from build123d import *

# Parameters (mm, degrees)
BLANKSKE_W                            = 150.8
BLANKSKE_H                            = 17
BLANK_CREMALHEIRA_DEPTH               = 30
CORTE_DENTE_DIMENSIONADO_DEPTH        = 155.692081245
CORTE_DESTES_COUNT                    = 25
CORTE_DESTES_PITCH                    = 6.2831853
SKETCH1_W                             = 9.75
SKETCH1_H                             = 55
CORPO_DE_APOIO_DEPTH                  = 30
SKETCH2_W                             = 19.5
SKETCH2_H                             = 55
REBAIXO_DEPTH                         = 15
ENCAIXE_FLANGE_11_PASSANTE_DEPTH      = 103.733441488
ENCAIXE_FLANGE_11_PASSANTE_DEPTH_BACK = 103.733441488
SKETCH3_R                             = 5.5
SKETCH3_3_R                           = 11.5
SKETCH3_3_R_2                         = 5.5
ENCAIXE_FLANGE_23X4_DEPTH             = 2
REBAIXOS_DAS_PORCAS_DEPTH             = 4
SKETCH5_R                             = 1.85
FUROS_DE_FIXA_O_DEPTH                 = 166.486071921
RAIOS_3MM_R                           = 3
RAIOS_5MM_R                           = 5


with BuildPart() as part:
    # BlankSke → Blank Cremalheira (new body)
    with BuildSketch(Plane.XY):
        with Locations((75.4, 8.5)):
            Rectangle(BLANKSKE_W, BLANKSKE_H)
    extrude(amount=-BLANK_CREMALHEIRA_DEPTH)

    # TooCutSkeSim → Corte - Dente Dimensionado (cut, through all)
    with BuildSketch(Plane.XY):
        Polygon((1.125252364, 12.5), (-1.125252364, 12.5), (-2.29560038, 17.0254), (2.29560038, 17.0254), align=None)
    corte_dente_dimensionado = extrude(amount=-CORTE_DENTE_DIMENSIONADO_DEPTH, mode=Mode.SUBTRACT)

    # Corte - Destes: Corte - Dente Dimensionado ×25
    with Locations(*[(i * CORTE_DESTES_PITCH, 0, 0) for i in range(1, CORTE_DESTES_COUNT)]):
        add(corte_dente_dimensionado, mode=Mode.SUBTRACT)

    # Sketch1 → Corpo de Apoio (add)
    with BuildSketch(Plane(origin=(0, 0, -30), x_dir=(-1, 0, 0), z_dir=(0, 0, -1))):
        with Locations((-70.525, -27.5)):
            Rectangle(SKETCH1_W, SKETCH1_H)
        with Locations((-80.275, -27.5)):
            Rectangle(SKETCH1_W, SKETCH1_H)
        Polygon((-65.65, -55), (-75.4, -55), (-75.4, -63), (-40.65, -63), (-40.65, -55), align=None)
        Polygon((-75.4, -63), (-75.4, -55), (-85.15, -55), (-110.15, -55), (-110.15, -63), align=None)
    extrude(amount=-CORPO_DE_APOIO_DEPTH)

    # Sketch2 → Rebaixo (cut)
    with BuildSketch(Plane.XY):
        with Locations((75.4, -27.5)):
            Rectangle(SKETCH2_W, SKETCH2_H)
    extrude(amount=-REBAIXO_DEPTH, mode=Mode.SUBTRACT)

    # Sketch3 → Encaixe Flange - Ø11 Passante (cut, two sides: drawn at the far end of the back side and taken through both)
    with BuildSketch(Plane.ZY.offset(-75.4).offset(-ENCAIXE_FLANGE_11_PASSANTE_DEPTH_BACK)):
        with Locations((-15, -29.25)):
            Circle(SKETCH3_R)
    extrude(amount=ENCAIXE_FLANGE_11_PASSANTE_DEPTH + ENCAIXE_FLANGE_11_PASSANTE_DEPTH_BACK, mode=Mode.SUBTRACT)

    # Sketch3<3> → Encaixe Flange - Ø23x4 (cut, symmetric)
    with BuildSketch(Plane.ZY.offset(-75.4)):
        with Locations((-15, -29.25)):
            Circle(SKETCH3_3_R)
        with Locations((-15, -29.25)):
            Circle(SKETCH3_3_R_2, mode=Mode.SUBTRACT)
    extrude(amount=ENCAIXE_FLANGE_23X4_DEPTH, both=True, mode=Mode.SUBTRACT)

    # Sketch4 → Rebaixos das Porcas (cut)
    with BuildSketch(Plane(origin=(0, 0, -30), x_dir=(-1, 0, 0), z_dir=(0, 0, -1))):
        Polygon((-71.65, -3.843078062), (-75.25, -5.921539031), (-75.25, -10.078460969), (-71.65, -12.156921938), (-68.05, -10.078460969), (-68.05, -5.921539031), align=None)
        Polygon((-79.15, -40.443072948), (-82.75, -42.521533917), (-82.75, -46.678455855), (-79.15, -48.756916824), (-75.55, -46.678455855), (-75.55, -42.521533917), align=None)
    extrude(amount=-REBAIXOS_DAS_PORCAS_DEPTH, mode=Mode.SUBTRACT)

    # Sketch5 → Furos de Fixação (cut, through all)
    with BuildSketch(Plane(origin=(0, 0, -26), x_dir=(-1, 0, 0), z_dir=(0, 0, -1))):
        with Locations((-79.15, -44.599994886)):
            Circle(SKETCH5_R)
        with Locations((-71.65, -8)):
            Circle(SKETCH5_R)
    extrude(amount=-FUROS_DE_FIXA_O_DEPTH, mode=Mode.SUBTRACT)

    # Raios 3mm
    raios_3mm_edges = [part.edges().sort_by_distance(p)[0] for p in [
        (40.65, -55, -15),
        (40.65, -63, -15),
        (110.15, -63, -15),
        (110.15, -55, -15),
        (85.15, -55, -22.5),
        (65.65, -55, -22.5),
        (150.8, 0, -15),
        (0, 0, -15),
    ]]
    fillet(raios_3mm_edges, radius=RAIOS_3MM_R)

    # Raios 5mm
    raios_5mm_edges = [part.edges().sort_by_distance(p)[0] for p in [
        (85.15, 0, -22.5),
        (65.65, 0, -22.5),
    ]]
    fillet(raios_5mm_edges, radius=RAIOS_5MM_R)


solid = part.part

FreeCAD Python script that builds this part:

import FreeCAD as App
import Part
import Sketcher
Q = App.Units.Quantity


def edges_at(feature, points):
    """Names of the edges that pass closest to the given points."""
    edges = feature.Shape.Edges
    near = lambda p: min(range(len(edges)), key=lambda i: edges[i].distToShape(Part.Vertex(*p))[0])
    return sorted({f"Edge{near(p) + 1}" for p in points})


def add_polygon(sketch, points):
    """Adds a closed chain of lines whose ends are joined by coincident constraints."""
    first, n = sketch.GeometryCount, len(points)
    for a, b in zip(points, points[1:] + points[:1]):
        sketch.addGeometry(Part.LineSegment(App.Vector(*a, 0), App.Vector(*b, 0)), False)
    for i in range(n):
        sketch.addConstraint(Sketcher.Constraint("Coincident", first + i, 2, first + (i + 1) % n, 1))

doc = App.newDocument("Part")
params = doc.addObject("Spreadsheet::Sheet", "Params")
for row, (alias, value) in enumerate([
    ("sketch1_height", "17 mm"),
    ("sketch1_width", "150.8 mm"),
    ("pad1_length", "30 mm"),
    ("linearpattern_pitch", "6.283185 mm"),
    ("sketch3_width", "25 mm"),
    ("sketch3_height", "55 mm"),
    ("sketch3_height2", "8 mm"),
    ("sketch3_width2", "19.5 mm"),
    ("pad2_length", "30 mm"),
    ("sketch4_height", "55 mm"),
    ("sketch4_width", "19.5 mm"),
    ("pocket2_length", "15 mm"),
    ("sketch5_diameter", "11 mm"),
    ("sketch6_diameter", "23 mm"),
    ("sketch6_diameter2", "11 mm"),
    ("pocket4_length", "4 mm"),
    ("pocket5_length", "4 mm"),
    ("sketch8_diameter", "3.7 mm"),
    ("fillet_radius", "3 mm"),
    ("fillet2_radius", "5 mm"),
], start=1):
    params.set(f"A{row}", alias)
    params.set(f"B{row}", "=" + value)
    params.setAlias(f"B{row}", alias)

body = doc.addObject("PartDesign::Body", "Body")

sketch1 = body.newObject("Sketcher::SketchObject", "Sketch")
sketch1.AttachmentSupport = (doc.getObject("XY_Plane"), [""])
sketch1.MapMode = "FlatFace"
add_polygon(sketch1, [(0, 17), (0, 0), (151, 0), (151, 17)])
sketch1.addConstraint([
    Sketcher.Constraint("Vertical", 0),
    Sketcher.Constraint("Horizontal", 1),
    Sketcher.Constraint("Vertical", 2),
    Sketcher.Constraint("Horizontal", 3),
    Sketcher.Constraint("Coincident", 0, 2, -1, 1),
    Sketcher.Constraint("DistanceY", 0, 2, 0, 1, Q("17 mm")),
    Sketcher.Constraint("DistanceX", 1, 1, 1, 2, Q("150.8 mm")),
])
sketch1.setExpression("Constraints[9]", "Params.sketch1_height")
sketch1.setExpression("Constraints[10]", "Params.sketch1_width")
pad1 = body.newObject("PartDesign::Pad", "Pad")
pad1.Profile = sketch1
pad1.setExpression("Length", "Params.pad1_length")
pad1.Reversed = True

sketch2 = body.newObject("Sketcher::SketchObject", "Sketch001")
sketch2.AttachmentSupport = (doc.getObject("XY_Plane"), [""])
sketch2.MapMode = "FlatFace"
add_polygon(sketch2, [(-1.1, 12.5), (1.1, 12.5), (2.3, 17), (-2.3, 17)])
sketch2.addConstraint([
    Sketcher.Constraint("Horizontal", 0),
    Sketcher.Constraint("Horizontal", 2),
    Sketcher.Constraint("Equal", 1, 3),
    Sketcher.Constraint("Angle", 1, Q("75.5 deg")),
    Sketcher.Constraint("DistanceY", -1, 1, 0, 2, Q("12.5 mm")),
    Sketcher.Constraint("DistanceX", 2, 2, 2, 1, Q("4.591201 mm")),
    Sketcher.Constraint("DistanceX", -1, 1, 1, 2, Q("2.2956 mm")),
    Sketcher.Constraint("DistanceY", -1, 1, 1, 2, Q("17.0254 mm")),
])
pocket1 = body.newObject("PartDesign::Pocket", "Pocket")
pocket1.Profile = sketch2
pocket1.Type = "ThroughAll"
doc.recompute()

linearpattern = body.newObject("PartDesign::LinearPattern", "LinearPattern")
linearpattern.Originals = [pocket1]
linearpattern.Direction = (doc.getObject("X_Axis"), [""])
linearpattern.Mode = "offset"
linearpattern.setExpression("Offset", "Params.linearpattern_pitch")
linearpattern.Occurrences = 25
body.Tip = linearpattern

sketch3 = body.newObject("Sketcher::SketchObject", "Sketch002")
sketch3.AttachmentSupport = (doc.getObject("XY_Plane"), [""])
sketch3.MapMode = "FlatFace"
sketch3.AttachmentOffset = App.Placement(App.Vector(0, 0, -30), App.Rotation())
add_polygon(sketch3, [(66, -55), (66, 0), (85, 0), (85, -55), (110, -55), (110, -63), (41, -63), (41, -55)])
sketch3.addConstraint([
    Sketcher.Constraint("Vertical", 0),
    Sketcher.Constraint("Horizontal", 1),
    Sketcher.Constraint("Vertical", 2),
    Sketcher.Constraint("Horizontal", 3),
    Sketcher.Constraint("Vertical", 4),
    Sketcher.Constraint("Horizontal", 5),
    Sketcher.Constraint("Vertical", 6),
    Sketcher.Constraint("Horizontal", 7),
    Sketcher.Constraint("PointOnObject", 0, 2, -1),
    Sketcher.Constraint("Horizontal", 3, 2, 6, 2),
    Sketcher.Constraint("Equal", 3, 7),
    Sketcher.Constraint("DistanceX", 3, 1, 3, 2, Q("25 mm")),
    Sketcher.Constraint("DistanceY", 0, 1, 0, 2, Q("55 mm")),
    Sketcher.Constraint("DistanceY", 4, 2, 4, 1, Q("8 mm")),
    Sketcher.Constraint("DistanceX", 1, 1, 1, 2, Q("19.5 mm")),
    Sketcher.Constraint("DistanceX", -1, 1, 0, 2, Q("65.65 mm")),
])
sketch3.setExpression("Constraints[19]", "Params.sketch3_width")
sketch3.setExpression("Constraints[20]", "Params.sketch3_height")
sketch3.setExpression("Constraints[21]", "Params.sketch3_height2")
sketch3.setExpression("Constraints[22]", "Params.sketch3_width2")
pad2 = body.newObject("PartDesign::Pad", "Pad001")
pad2.Profile = sketch3
pad2.setExpression("Length", "Params.pad2_length")

sketch4 = body.newObject("Sketcher::SketchObject", "Sketch003")
sketch4.AttachmentSupport = (doc.getObject("XY_Plane"), [""])
sketch4.MapMode = "FlatFace"
add_polygon(sketch4, [(66, 0), (66, -55), (85, -55), (85, 0)])
sketch4.addConstraint([
    Sketcher.Constraint("Vertical", 0),
    Sketcher.Constraint("Horizontal", 1),
    Sketcher.Constraint("Vertical", 2),
    Sketcher.Constraint("Horizontal", 3),
    Sketcher.Constraint("PointOnObject", 2, 2, -1),
    Sketcher.Constraint("DistanceY", 0, 2, 0, 1, Q("55 mm")),
    Sketcher.Constraint("DistanceX", 1, 1, 1, 2, Q("19.5 mm")),
    Sketcher.Constraint("DistanceX", -1, 1, 0, 2, Q("65.65 mm")),
])
sketch4.setExpression("Constraints[9]", "Params.sketch4_height")
sketch4.setExpression("Constraints[10]", "Params.sketch4_width")
pocket2 = body.newObject("PartDesign::Pocket", "Pocket001")
pocket2.Profile = sketch4
pocket2.setExpression("Length", "Params.pocket2_length")

sketch5 = body.newObject("Sketcher::SketchObject", "Sketch004")
sketch5.AttachmentSupport = (doc.getObject("YZ_Plane"), [""])
sketch5.MapMode = "FlatFace"
sketch5.AttachmentOffset = App.Placement(App.Vector(0, 0, 75.4), App.Rotation())
sketch5.addGeometry(Part.Circle(App.Vector(-29, -15, 0), App.Vector(0, 0, 1), 6), False)
sketch5.addConstraint([
    Sketcher.Constraint("Diameter", 0, Q("11 mm")),
    Sketcher.Constraint("DistanceY", 0, 3, -1, 1, Q("15 mm")),
    Sketcher.Constraint("DistanceX", 0, 3, -1, 1, Q("29.25 mm")),
])
sketch5.setExpression("Constraints[0]", "Params.sketch5_diameter")
pocket3 = body.newObject("PartDesign::Pocket", "Pocket002")
pocket3.Profile = sketch5
pocket3.Type = "ThroughAll"
pocket3.Midplane = True

sketch6 = body.newObject("Sketcher::SketchObject", "Sketch005")
sketch6.AttachmentSupport = (doc.getObject("YZ_Plane"), [""])
sketch6.MapMode = "FlatFace"
sketch6.AttachmentOffset = App.Placement(App.Vector(0, 0, 75.4), App.Rotation())
sketch6.addGeometry([
    Part.Circle(App.Vector(-29, -15, 0), App.Vector(0, 0, 1), 12),
    Part.Circle(App.Vector(-29, -15, 0), App.Vector(0, 0, 1), 6),
], False)
sketch6.addConstraint([
    Sketcher.Constraint("Coincident", 1, 3, 0, 3),
    Sketcher.Constraint("Diameter", 0, Q("23 mm")),
    Sketcher.Constraint("Diameter", 1, Q("11 mm")),
    Sketcher.Constraint("DistanceY", 0, 3, -1, 1, Q("15 mm")),
    Sketcher.Constraint("DistanceX", 0, 3, -1, 1, Q("29.25 mm")),
])
sketch6.setExpression("Constraints[1]", "Params.sketch6_diameter")
sketch6.setExpression("Constraints[2]", "Params.sketch6_diameter2")
pocket4 = body.newObject("PartDesign::Pocket", "Pocket003")
pocket4.Profile = sketch6
pocket4.setExpression("Length", "Params.pocket4_length")
pocket4.Midplane = True

sketch7 = body.newObject("Sketcher::SketchObject", "Sketch006")
sketch7.AttachmentSupport = (doc.getObject("XY_Plane"), [""])
sketch7.MapMode = "FlatFace"
sketch7.AttachmentOffset = App.Placement(App.Vector(0, 0, -30), App.Rotation())
add_polygon(sketch7, [(71.7, -3.8), (75.2, -5.9), (75.2, -10.1), (71.7, -12.2), (68, -10.1), (68, -5.9)])
add_polygon(sketch7, [(79.2, -40.4), (82.8, -42.5), (82.8, -46.7), (79.2, -48.8), (75.5, -46.7), (75.5, -42.5)])
sketch7.addConstraint([
    Sketcher.Constraint("Vertical", 1),
    Sketcher.Constraint("Vertical", 4),
    Sketcher.Constraint("Vertical", 7),
    Sketcher.Constraint("Vertical", 10),
    Sketcher.Constraint("Parallel", 0, 3),
    Sketcher.Constraint("Parallel", 2, 5),
    Sketcher.Constraint("Parallel", 3, 6),
    Sketcher.Constraint("Parallel", 5, 8),
    Sketcher.Constraint("Parallel", 6, 9),
    Sketcher.Constraint("Parallel", 8, 11),
    Sketcher.Constraint("Horizontal", 1, 2, 3, 2),
    Sketcher.Constraint("Horizontal", 0, 2, 4, 2),
    Sketcher.Constraint("Horizontal", 7, 2, 9, 2),
    Sketcher.Constraint("Horizontal", 6, 2, 10, 2),
    Sketcher.Constraint("Vertical", 2, 2, 5, 2),
    Sketcher.Constraint("Equal", 4, 7),
    Sketcher.Constraint("Equal", 5, 6),
    Sketcher.Constraint("Angle", 0, Q("-30 deg")),
    Sketcher.Constraint("DistanceX", 2, 2, 1, 2, Q("3.6 mm")),
    Sketcher.Constraint("DistanceX", 2, 2, 6, 2, Q("11.1 mm")),
    Sketcher.Constraint("DistanceX", -1, 1, 0, 2, Q("75.25 mm")),
    Sketcher.Constraint("DistanceY", 1, 2, 1, 1, Q("4.156922 mm")),
    Sketcher.Constraint("DistanceY", 0, 2, -1, 1, Q("5.921539 mm")),
    Sketcher.Constraint("DistanceY", 6, 2, 2, 2, Q("30.364612 mm")),
])
pocket5 = body.newObject("PartDesign::Pocket", "Pocket004")
pocket5.Profile = sketch7
pocket5.setExpression("Length", "Params.pocket5_length")
pocket5.Reversed = True

sketch8 = body.newObject("Sketcher::SketchObject", "Sketch007")
sketch8.AttachmentSupport = (doc.getObject("XY_Plane"), [""])
sketch8.MapMode = "FlatFace"
sketch8.AttachmentOffset = App.Placement(App.Vector(0, 0, -26), App.Rotation())
sketch8.addGeometry([
    Part.Circle(App.Vector(79.2, -44.6, 0), App.Vector(0, 0, 1), 1.9),
    Part.Circle(App.Vector(71.7, -8, 0), App.Vector(0, 0, 1), 1.9),
], False)
sketch8.addConstraint([
    Sketcher.Constraint("Equal", 0, 1),
    Sketcher.Constraint("Diameter", 0, Q("3.7 mm")),
    Sketcher.Constraint("DistanceY", 1, 3, -1, 1, Q("8 mm")),
    Sketcher.Constraint("DistanceX", 1, 3, 0, 3, Q("7.5 mm")),
    Sketcher.Constraint("DistanceX", -1, 1, 0, 3, Q("79.15 mm")),
    Sketcher.Constraint("DistanceY", 0, 3, -1, 1, Q("44.599995 mm")),
])
sketch8.setExpression("Constraints[1]", "Params.sketch8_diameter")
pocket6 = body.newObject("PartDesign::Pocket", "Pocket005")
pocket6.Profile = sketch8
pocket6.Type = "ThroughAll"
pocket6.Reversed = True
doc.recompute()

fillet = body.newObject("PartDesign::Fillet", "Fillet")
fillet.Base = (pocket6, edges_at(pocket6, [
    (40.65, -55, -15),
    (40.65, -63, -15),
    (110.15, -63, -15),
    (110.15, -55, -15),
    (85.15, -55, -22.5),
    (65.65, -55, -22.5),
    (150.8, 0, -15),
    (0, 0, -15),
]))
fillet.setExpression("Radius", "Params.fillet_radius")
doc.recompute()

fillet2 = body.newObject("PartDesign::Fillet", "Fillet001")
fillet2.Base = (fillet, edges_at(fillet, [(85.15, 0, -22.5), (65.65, 0, -22.5)]))
fillet2.setExpression("Radius", "Params.fillet2_radius")

doc.recompute()
